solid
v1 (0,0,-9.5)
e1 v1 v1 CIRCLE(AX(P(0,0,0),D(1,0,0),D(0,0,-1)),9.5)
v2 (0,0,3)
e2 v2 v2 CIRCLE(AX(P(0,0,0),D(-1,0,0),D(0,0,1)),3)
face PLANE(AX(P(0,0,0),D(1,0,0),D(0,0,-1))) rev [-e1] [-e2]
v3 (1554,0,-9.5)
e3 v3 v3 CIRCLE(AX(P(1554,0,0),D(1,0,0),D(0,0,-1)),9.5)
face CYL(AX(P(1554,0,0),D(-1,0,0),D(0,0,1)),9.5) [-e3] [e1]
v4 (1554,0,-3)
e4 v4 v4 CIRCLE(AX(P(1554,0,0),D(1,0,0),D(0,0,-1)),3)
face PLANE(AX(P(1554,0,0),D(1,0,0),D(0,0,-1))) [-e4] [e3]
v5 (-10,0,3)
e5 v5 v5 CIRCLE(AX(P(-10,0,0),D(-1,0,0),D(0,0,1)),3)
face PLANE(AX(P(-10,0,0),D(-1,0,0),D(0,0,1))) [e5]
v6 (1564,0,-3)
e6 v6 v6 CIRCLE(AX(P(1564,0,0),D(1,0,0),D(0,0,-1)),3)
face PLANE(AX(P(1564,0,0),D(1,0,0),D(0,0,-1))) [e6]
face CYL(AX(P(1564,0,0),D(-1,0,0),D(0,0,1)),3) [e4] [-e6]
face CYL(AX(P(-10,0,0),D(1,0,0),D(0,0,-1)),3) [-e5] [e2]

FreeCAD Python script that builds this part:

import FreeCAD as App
import Part
import Sketcher

V = App.Vector
Q = App.Units.Quantity

doc = App.newDocument("Part")
body = doc.addObject("PartDesign::Body", "Body")

sketch1 = doc.addObject("Sketcher::SketchObject", "Sketch")
body.addObject(sketch1)
sketch1.AttachmentSupport = (doc.YZ_Plane, [""])
sketch1.MapMode = "FlatFace"
sketch1.addGeometry(Part.Circle(V(0, 0, 0), V(0, 0, 1), 10), False)
sketch1.addConstraint([
    Sketcher.Constraint("Coincident", 0, 3, -1, 1),
    Sketcher.Constraint("Diameter", 0, Q("19 mm")),
])
pad1 = doc.addObject("PartDesign::Pad", "Pad")
body.addObject(pad1)
pad1.Profile = sketch1
pad1.Length = 1554

sketch2 = doc.addObject("Sketcher::SketchObject", "Sketch001")
body.addObject(sketch2)
sketch2.AttachmentSupport = (doc.YZ_Plane, [""])
sketch2.MapMode = "FlatFace"
sketch2.addGeometry(Part.Circle(V(0, 0, 0), V(0, 0, 1), 3), False)
sketch2.addConstraint([
    Sketcher.Constraint("Coincident", 0, 3, -1, 1),
    Sketcher.Constraint("Diameter", 0, Q("6 mm")),
])
pad2 = doc.addObject("PartDesign::Pad", "Pad001")
body.addObject(pad2)
pad2.Profile = sketch2
pad2.Length = 10
pad2.Reversed = True

sketch3 = doc.addObject("Sketcher::SketchObject", "Sketch002")
body.addObject(sketch3)
sketch3.AttachmentSupport = (doc.YZ_Plane, [""])
sketch3.MapMode = "FlatFace"
sketch3.AttachmentOffset = App.Placement(V(0, 0, 1554), App.Rotation())
sketch3.addGeometry(Part.Circle(V(0, 0, 0), V(0, 0, 1), 3), False)
sketch3.addConstraint([
    Sketcher.Constraint("Coincident", 0, 3, -1, 1),
    Sketcher.Constraint("Diameter", 0, Q("6 mm")),
])
pad3 = doc.addObject("PartDesign::Pad", "Pad002")
body.addObject(pad3)
pad3.Profile = sketch3
pad3.Length = 10

doc.recompute()
